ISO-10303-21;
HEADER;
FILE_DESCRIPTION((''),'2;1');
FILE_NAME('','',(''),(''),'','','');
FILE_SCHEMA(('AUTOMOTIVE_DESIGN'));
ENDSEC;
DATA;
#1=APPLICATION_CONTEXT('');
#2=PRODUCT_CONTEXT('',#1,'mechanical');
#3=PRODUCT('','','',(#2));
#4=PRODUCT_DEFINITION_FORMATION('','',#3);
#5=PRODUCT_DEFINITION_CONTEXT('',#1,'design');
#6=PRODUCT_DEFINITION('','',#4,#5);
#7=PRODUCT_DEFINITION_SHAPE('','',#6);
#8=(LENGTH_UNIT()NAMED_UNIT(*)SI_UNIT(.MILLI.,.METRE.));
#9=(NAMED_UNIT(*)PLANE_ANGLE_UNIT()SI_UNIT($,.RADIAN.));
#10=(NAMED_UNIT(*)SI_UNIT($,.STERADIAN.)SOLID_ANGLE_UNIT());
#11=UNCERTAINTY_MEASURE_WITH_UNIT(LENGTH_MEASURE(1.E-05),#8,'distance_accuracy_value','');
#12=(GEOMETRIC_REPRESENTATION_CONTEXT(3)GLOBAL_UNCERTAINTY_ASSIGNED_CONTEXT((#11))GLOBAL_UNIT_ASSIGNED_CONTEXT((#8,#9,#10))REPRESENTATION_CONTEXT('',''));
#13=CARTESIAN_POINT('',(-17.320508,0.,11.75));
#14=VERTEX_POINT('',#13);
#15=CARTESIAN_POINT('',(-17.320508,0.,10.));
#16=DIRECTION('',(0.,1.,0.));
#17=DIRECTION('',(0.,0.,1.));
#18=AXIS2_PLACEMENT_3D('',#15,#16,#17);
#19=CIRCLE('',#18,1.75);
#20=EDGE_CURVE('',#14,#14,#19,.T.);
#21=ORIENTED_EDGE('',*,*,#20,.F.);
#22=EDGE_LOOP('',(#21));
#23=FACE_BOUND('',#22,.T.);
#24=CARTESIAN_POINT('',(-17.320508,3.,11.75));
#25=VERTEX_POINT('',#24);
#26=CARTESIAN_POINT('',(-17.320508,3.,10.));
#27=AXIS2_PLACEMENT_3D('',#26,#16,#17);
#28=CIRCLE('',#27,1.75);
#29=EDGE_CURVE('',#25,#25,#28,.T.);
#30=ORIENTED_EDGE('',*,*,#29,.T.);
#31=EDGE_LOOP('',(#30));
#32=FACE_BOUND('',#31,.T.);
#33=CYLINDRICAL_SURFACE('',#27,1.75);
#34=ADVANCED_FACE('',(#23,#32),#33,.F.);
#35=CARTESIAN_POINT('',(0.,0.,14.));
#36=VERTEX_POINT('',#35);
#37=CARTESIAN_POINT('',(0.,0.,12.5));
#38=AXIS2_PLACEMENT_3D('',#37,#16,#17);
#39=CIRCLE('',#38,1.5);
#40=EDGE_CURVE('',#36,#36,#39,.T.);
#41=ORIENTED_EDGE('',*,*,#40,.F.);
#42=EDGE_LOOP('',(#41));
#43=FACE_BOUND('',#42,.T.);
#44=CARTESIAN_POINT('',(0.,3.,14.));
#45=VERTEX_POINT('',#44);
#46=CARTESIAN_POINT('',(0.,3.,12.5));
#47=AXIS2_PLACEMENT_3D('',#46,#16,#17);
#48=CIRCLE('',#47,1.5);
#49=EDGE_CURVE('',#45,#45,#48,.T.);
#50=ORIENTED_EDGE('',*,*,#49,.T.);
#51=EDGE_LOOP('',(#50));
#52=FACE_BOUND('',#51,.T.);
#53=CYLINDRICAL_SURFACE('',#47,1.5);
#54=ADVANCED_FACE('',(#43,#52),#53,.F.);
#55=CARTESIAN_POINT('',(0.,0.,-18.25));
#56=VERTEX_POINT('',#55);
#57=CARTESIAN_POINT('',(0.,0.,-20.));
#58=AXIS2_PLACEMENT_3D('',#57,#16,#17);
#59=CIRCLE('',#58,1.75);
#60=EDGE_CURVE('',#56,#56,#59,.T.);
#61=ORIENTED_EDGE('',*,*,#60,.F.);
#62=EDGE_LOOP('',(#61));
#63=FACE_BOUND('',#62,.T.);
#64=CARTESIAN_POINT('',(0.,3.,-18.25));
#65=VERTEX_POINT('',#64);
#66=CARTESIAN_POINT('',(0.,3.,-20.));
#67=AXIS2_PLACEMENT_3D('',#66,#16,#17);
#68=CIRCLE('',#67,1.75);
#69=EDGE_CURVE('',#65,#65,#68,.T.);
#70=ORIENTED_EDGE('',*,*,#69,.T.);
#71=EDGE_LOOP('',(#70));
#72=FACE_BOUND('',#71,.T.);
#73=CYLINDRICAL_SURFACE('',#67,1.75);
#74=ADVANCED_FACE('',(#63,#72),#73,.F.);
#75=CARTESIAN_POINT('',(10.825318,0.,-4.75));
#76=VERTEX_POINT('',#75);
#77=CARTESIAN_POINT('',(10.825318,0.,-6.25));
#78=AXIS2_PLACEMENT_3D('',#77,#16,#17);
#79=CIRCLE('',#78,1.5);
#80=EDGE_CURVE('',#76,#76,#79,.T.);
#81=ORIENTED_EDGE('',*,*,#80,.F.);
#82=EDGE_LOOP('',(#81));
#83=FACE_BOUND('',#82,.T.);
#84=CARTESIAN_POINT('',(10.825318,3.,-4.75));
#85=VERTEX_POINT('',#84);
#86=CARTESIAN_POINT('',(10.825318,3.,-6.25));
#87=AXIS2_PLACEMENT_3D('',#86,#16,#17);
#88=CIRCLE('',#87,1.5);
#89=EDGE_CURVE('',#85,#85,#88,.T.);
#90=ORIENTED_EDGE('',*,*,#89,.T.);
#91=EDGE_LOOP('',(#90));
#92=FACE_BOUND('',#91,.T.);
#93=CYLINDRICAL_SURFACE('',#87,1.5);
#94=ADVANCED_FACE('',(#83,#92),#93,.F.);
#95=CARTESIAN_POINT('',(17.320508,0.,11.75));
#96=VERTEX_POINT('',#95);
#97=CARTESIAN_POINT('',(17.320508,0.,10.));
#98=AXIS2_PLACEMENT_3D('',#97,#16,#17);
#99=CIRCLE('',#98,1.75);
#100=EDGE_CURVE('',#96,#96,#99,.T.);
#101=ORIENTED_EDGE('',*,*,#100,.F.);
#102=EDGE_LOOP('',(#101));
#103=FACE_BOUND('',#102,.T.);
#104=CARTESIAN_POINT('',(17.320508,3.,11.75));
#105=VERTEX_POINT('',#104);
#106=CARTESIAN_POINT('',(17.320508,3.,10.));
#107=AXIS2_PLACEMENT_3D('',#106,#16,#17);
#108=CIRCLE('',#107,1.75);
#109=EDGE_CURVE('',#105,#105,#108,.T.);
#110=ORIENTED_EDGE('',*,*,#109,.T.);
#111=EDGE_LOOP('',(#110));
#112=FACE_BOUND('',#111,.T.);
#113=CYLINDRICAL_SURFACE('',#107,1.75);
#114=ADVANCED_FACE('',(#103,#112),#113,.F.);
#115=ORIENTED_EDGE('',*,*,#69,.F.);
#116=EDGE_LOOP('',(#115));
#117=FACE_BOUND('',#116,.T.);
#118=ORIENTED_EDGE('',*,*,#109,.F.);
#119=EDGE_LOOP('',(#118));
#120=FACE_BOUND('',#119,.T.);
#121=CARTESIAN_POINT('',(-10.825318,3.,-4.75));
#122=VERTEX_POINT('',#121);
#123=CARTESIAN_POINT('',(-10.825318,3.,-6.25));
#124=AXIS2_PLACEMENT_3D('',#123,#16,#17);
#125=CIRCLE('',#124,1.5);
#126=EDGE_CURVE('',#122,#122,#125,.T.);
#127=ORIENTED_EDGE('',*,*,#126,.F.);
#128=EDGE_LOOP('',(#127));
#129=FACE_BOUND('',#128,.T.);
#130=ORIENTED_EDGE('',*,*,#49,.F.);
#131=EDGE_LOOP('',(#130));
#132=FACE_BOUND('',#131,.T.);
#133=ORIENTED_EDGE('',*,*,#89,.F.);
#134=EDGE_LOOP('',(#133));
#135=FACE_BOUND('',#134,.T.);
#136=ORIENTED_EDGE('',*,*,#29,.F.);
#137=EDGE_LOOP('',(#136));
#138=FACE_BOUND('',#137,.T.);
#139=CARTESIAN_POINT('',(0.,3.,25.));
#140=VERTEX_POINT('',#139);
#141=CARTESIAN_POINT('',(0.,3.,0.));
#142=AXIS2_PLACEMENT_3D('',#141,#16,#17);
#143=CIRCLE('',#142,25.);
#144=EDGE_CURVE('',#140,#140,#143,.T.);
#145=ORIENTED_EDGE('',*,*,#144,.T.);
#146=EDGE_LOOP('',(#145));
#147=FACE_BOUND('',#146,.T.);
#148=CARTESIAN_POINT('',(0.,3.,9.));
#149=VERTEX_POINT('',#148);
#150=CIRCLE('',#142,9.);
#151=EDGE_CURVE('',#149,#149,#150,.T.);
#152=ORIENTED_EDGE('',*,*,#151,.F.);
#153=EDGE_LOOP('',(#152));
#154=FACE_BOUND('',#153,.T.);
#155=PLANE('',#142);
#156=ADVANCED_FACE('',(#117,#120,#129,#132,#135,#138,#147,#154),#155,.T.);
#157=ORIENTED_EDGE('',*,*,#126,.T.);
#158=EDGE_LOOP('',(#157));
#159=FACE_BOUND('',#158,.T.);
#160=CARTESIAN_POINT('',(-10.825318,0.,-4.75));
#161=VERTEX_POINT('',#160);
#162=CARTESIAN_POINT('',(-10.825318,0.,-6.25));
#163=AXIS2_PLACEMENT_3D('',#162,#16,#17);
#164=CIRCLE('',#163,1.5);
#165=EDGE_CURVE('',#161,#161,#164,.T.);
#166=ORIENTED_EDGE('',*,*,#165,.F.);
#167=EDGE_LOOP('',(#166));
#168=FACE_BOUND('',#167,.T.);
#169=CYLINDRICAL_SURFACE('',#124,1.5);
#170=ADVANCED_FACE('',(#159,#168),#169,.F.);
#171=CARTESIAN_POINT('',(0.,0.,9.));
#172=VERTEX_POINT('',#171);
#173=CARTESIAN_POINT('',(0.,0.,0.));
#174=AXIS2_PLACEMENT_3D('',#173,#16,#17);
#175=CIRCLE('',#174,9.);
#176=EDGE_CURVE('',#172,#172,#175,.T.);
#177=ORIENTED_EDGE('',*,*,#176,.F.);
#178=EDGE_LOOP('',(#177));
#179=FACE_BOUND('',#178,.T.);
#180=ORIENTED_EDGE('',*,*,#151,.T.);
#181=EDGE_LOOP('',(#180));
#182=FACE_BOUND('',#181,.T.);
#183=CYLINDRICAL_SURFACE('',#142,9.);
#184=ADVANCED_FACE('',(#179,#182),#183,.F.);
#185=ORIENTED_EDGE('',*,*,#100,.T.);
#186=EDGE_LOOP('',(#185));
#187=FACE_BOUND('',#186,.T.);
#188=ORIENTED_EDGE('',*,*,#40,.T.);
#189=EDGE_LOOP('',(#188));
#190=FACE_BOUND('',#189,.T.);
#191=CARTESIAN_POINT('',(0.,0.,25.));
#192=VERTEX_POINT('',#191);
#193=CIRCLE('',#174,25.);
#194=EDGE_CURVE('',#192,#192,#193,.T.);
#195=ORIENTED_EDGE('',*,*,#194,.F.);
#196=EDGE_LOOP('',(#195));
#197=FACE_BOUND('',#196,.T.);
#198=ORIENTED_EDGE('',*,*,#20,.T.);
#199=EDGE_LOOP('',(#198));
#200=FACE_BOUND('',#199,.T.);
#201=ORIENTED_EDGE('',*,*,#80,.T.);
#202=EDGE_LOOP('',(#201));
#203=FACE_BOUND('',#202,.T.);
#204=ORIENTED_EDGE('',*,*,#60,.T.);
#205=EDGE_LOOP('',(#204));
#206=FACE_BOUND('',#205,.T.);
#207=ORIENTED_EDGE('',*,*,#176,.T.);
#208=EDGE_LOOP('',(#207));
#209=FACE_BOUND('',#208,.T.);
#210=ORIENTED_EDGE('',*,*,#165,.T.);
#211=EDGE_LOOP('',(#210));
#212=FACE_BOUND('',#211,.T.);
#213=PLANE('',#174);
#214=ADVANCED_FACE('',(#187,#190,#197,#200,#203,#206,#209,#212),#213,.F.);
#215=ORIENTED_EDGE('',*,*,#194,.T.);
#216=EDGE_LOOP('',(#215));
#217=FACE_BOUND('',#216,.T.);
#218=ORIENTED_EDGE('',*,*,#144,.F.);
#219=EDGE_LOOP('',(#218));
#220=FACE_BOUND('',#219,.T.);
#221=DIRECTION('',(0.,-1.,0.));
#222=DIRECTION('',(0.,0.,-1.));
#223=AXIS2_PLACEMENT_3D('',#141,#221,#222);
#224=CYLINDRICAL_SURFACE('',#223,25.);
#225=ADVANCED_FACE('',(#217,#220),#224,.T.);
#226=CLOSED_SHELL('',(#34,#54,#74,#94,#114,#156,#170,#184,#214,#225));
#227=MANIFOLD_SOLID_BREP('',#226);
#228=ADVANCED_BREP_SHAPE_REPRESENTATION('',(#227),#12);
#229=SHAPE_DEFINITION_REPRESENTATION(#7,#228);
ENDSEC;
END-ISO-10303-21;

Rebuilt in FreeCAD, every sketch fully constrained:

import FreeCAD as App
import Part
import Sketcher

V = App.Vector
Q = App.Units.Quantity

doc = App.newDocument("Part")
params = doc.addObject("Spreadsheet::Sheet", "Params")
for row, (alias, value) in enumerate([
    ("sketch1_diameter", "50 mm"),
    ("pad1_length", "3 mm"),
    ("sketch2_diameter", "3.5 mm"),
    ("hole_diameter", "3.5 mm"),
    ("sketch3_diameter", "18 mm"),
    ("hole2_diameter", "18 mm"),
    ("sketch4_diameter", "3 mm"),
    ("hole3_diameter", "3 mm"),
], start=1):
    params.set(f"A{row}", alias)
    params.set(f"B{row}", "=" + value)
    params.setAlias(f"B{row}", alias)

body = doc.addObject("PartDesign::Body", "Body")

# Sketch on XZ plane
sketch1 = body.newObject("Sketcher::SketchObject", "Sketch")
sketch1.AttachmentSupport = (doc.getObject("XZ_Plane"), [""])
sketch1.MapMode = "FlatFace"
sketch1.addGeometry(Part.Circle(V(0, 0, 0), V(0, 0, 1), 25), False)
sketch1.addConstraint([
    Sketcher.Constraint("Coincident", 0, 3, -1, 1),
    Sketcher.Constraint("Diameter", 0, Q("50 mm")),
])
sketch1.setExpression("Constraints[1]", "Params.sketch1_diameter")
pad1 = body.newObject("PartDesign::Pad", "Pad")
pad1.Profile = sketch1
pad1.setExpression("Length", "Params.pad1_length")
pad1.Reversed = True

# Sketch on XZ plane
sketch2 = body.newObject("Sketcher::SketchObject", "Sketch001")
sketch2.AttachmentSupport = (doc.getObject("XZ_Plane"), [""])
sketch2.MapMode = "FlatFace"
sketch2.AttachmentOffset = App.Placement(V(0, 0, -3), App.Rotation())
sketch2.addGeometry([
    Part.Circle(V(0, -20, 0), V(0, 0, 1), 1.75),
    Part.Circle(V(-17.320508, 10, 0), V(0, 0, 1), 1.75),
    Part.Circle(V(17.320508, 10, 0), V(0, 0, 1), 1.75),
], False)
sketch2.addConstraint([
    Sketcher.Constraint("Equal", 0, 1),
    Sketcher.Constraint("Equal", 1, 2),
    Sketcher.Constraint("Symmetric", 1, 3, 2, 3, -2),
    Sketcher.Constraint("PointOnObject", 0, 3, -2),
    Sketcher.Constraint("Diameter", 0, Q("3.5 mm")),
    Sketcher.Constraint("DistanceY", 0, 3, -1, 1, Q("20 mm")),
    Sketcher.Constraint("DistanceY", -1, 1, 1, 3, Q("10 mm")),
    Sketcher.Constraint("DistanceX", 1, 3, -1, 1, Q("17.320508 mm")),
])
sketch2.setExpression("Constraints[4]", "Params.sketch2_diameter")
doc.recompute()
hole = body.newObject("PartDesign::Hole", "Hole")
hole.Profile = sketch2
hole.ThreadType = "None"
hole.setExpression("Diameter", "Params.hole_diameter")
hole.DepthType = "ThroughAll"
hole.Reversed = True

# Sketch on XZ plane
sketch3 = body.newObject("Sketcher::SketchObject", "Sketch002")
sketch3.AttachmentSupport = (doc.getObject("XZ_Plane"), [""])
sketch3.MapMode = "FlatFace"
sketch3.AttachmentOffset = App.Placement(V(0, 0, -3), App.Rotation())
sketch3.addGeometry(Part.Circle(V(0, 0, 0), V(0, 0, 1), 9), False)
sketch3.addConstraint([
    Sketcher.Constraint("Coincident", 0, 3, -1, 1),
    Sketcher.Constraint("Diameter", 0, Q("18 mm")),
])
sketch3.setExpression("Constraints[1]", "Params.sketch3_diameter")
doc.recompute()
hole2 = body.newObject("PartDesign::Hole", "Hole001")
hole2.Profile = sketch3
hole2.ThreadType = "None"
hole2.setExpression("Diameter", "Params.hole2_diameter")
hole2.DepthType = "ThroughAll"
hole2.Reversed = True

# Sketch on XZ plane
sketch4 = body.newObject("Sketcher::SketchObject", "Sketch003")
sketch4.AttachmentSupport = (doc.getObject("XZ_Plane"), [""])
sketch4.MapMode = "FlatFace"
sketch4.AttachmentOffset = App.Placement(V(0, 0, -3), App.Rotation())
sketch4.addGeometry([
    Part.Circle(V(-10.825318, -6.25, 0), V(0, 0, 1), 1.5),
    Part.Circle(V(0, 12.5, 0), V(0, 0, 1), 1.5),
    Part.Circle(V(10.825318, -6.25, 0), V(0, 0, 1), 1.5),
], False)
sketch4.addConstraint([
    Sketcher.Constraint("Equal", 0, 1),
    Sketcher.Constraint("Equal", 1, 2),
    Sketcher.Constraint("Symmetric", 0, 3, 2, 3, -2),
    Sketcher.Constraint("PointOnObject", 1, 3, -2),
    Sketcher.Constraint("Diameter", 0, Q("3 mm")),
    Sketcher.Constraint("DistanceY", -1, 1, 1, 3, Q("12.5 mm")),
    Sketcher.Constraint("DistanceY", 0, 3, -1, 1, Q("6.25 mm")),
    Sketcher.Constraint("DistanceX", 0, 3, -1, 1, Q("10.825318 mm")),
])
sketch4.setExpression("Constraints[4]", "Params.sketch4_diameter")
doc.recompute()
hole3 = body.newObject("PartDesign::Hole", "Hole002")
hole3.Profile = sketch4
hole3.ThreadType = "None"
hole3.setExpression("Diameter", "Params.hole3_diameter")
hole3.DepthType = "ThroughAll"
hole3.Reversed = True

doc.recompute()
